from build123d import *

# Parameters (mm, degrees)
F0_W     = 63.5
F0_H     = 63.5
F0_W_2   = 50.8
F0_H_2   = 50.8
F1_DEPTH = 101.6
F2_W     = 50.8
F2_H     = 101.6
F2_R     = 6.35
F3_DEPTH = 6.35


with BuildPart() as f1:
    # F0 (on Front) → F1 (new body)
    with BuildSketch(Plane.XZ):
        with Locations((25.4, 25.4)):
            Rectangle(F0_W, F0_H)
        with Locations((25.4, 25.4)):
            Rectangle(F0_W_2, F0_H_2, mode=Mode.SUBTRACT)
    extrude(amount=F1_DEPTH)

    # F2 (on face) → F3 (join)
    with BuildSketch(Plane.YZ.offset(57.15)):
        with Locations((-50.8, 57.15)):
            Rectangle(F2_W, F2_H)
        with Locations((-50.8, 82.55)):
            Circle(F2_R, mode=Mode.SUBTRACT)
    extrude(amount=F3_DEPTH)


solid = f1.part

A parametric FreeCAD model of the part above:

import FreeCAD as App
import Part
import Sketcher
from FreeCAD import Vector
Q = App.Units.Quantity

doc = App.newDocument("Part")
body = doc.addObject("PartDesign::Body", "Body")

# Sketch on XZ plane
sketch1 = body.newObject("Sketcher::SketchObject", "Sketch")
sketch1.AttachmentSupport = (doc.getObject("XZ_Plane"), [""])
sketch1.MapMode = "FlatFace"
sketch1.addGeometry([
    Part.LineSegment(Vector(-6, 57, 0), Vector(-6, -6, 0)),  # 0
    Part.LineSegment(Vector(-6, -6, 0), Vector(57, -6, 0)),  # 1
    Part.LineSegment(Vector(57, -6, 0), Vector(57, 57, 0)),  # 2
    Part.LineSegment(Vector(57, 57, 0), Vector(-6, 57, 0)),  # 3
    Part.LineSegment(Vector(51, 0, 0), Vector(0, 0, 0)),  # 4
    Part.LineSegment(Vector(0, 0, 0), Vector(0, 51, 0)),  # 5
    Part.LineSegment(Vector(0, 51, 0), Vector(51, 51, 0)),  # 6
    Part.LineSegment(Vector(51, 51, 0), Vector(51, 0, 0)),  # 7
], False)
sketch1.addConstraint([
    Sketcher.Constraint("Coincident", 0, 2, 1, 1),
    Sketcher.Constraint("Coincident", 1, 2, 2, 1),
    Sketcher.Constraint("Coincident", 2, 2, 3, 1),
    Sketcher.Constraint("Coincident", 3, 2, 0, 1),
    Sketcher.Constraint("Coincident", 4, 2, 5, 1),
    Sketcher.Constraint("Coincident", 5, 2, 6, 1),
    Sketcher.Constraint("Coincident", 6, 2, 7, 1),
    Sketcher.Constraint("Coincident", 7, 2, 4, 1),
    Sketcher.Constraint("Vertical", 0),
    Sketcher.Constraint("Horizontal", 1),
    Sketcher.Constraint("Vertical", 2),
    Sketcher.Constraint("Horizontal", 3),
    Sketcher.Constraint("Horizontal", 4),
    Sketcher.Constraint("Vertical", 5),
    Sketcher.Constraint("Horizontal", 6),
    Sketcher.Constraint("Vertical", 7),
    Sketcher.Constraint("Coincident", 4, 2, -1, 1),
    Sketcher.Constraint("Equal", 3, 0),
    Sketcher.Constraint("Equal", 6, 5),
    Sketcher.Constraint("DistanceX", 4, 2, 4, 1, Q("2 in")),
    Sketcher.Constraint("DistanceX", 1, 1, 1, 2, Q("2.5 in")),
    Sketcher.Constraint("DistanceX", 0, 2, -1, 1, Q("0.25 in")),
    Sketcher.Constraint("DistanceY", 0, 2, -1, 1, Q("0.25 in")),
])
pad1 = body.newObject("PartDesign::Pad", "Pad")
pad1.Profile = sketch1
pad1.Length = Q("4 in")

# Sketch on YZ plane
sketch2 = body.newObject("Sketcher::SketchObject", "Sketch001")
sketch2.AttachmentSupport = (doc.getObject("YZ_Plane"), [""])
sketch2.MapMode = "FlatFace"
sketch2.AttachmentOffset = App.Placement(Vector(0, 0, 2.25 * 25.4), App.Rotation())
sketch2.addGeometry([
    Part.LineSegment(Vector(-76, 108, 0), Vector(-76, 6, 0)),  # 0
    Part.LineSegment(Vector(-76, 6, 0), Vector(-25, 6, 0)),  # 1
    Part.LineSegment(Vector(-25, 6, 0), Vector(-25, 108, 0)),  # 2
    Part.LineSegment(Vector(-25, 108, 0), Vector(-76, 108, 0)),  # 3
    Part.Circle(Vector(-51, 83, 0), Vector(0, 0, 1), 6),  # 4
], False)
sketch2.addConstraint([
    Sketcher.Constraint("Coincident", 0, 2, 1, 1),
    Sketcher.Constraint("Coincident", 1, 2, 2, 1),
    Sketcher.Constraint("Coincident", 2, 2, 3, 1),
    Sketcher.Constraint("Coincident", 3, 2, 0, 1),
    Sketcher.Constraint("Vertical", 0),
    Sketcher.Constraint("Horizontal", 1),
    Sketcher.Constraint("Vertical", 2),
    Sketcher.Constraint("Horizontal", 3),
    Sketcher.Constraint("Diameter", 4, Q("0.5 in")),
    Sketcher.Constraint("DistanceX", 1, 1, 1, 2, Q("2 in")),
    Sketcher.Constraint("DistanceY", 0, 2, 0, 1, Q("4 in")),
    Sketcher.Constraint("DistanceX", 4, 3, -1, 1, Q("2 in")),
    Sketcher.Constraint("DistanceX", 0, 2, -1, 1, Q("3 in")),
    Sketcher.Constraint("DistanceY", 0, 2, 4, 3, Q("3 in")),
    Sketcher.Constraint("DistanceY", -1, 1, 4, 3, Q("3.25 in")),
])
pad2 = body.newObject("PartDesign::Pad", "Pad001")
pad2.Profile = sketch2
pad2.Length = Q("0.25 in")

doc.recompute()
